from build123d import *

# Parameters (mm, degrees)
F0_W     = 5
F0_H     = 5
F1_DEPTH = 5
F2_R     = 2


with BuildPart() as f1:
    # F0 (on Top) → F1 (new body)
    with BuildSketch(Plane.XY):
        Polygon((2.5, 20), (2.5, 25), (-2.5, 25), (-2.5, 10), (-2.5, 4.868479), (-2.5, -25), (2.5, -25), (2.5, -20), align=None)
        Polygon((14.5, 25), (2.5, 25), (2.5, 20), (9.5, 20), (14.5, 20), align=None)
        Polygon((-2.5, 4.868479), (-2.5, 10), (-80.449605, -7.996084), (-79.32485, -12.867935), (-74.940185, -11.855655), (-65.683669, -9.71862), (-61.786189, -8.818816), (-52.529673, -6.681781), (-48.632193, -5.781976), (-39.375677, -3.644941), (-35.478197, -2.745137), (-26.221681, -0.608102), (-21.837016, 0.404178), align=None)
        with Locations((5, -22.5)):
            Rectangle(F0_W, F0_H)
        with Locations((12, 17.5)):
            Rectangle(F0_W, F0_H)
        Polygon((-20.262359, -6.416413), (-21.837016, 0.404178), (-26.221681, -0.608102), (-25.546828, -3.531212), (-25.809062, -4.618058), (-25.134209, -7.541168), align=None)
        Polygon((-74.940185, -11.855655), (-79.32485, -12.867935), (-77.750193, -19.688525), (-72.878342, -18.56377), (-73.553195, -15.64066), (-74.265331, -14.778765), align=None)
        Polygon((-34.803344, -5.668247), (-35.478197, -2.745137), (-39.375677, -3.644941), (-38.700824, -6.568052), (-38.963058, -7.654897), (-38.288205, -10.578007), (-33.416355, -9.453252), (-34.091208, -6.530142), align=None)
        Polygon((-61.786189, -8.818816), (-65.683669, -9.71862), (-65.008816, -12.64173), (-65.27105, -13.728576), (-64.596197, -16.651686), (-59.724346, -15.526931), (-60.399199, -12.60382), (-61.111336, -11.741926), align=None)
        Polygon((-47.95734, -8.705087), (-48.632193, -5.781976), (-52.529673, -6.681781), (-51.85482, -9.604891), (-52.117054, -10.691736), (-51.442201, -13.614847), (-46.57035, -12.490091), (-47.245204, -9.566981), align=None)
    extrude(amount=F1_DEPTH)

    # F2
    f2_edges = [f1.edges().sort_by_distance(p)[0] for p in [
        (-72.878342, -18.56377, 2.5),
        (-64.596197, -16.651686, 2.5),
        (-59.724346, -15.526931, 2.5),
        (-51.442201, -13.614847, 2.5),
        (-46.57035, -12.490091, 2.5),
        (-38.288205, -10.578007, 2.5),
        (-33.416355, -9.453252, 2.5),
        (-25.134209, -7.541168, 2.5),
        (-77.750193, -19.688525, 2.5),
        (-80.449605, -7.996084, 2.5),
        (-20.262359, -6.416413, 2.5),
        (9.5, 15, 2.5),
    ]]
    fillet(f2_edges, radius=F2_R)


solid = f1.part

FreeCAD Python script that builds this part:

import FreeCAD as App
import Part
import Sketcher
from FreeCAD import Vector
Q = App.Units.Quantity


def edges_at(feature, points):
    """Names of the edges that pass closest to the given points."""
    edges = feature.Shape.Edges
    near = lambda p: min(range(len(edges)), key=lambda i: edges[i].distToShape(Part.Vertex(*p))[0])
    return sorted({f"Edge{near(p) + 1}" for p in points})

doc = App.newDocument("Part")
body = doc.addObject("PartDesign::Body", "Body")

# Sketch on XY plane
sketch1 = doc.addObject("Sketcher::SketchObject", "Sketch")
body.addObject(sketch1)
sketch1.AttachmentSupport = (doc.XY_Plane, [""])
sketch1.MapMode = "FlatFace"
sketch1.addGeometry([
    Part.LineSegment(Vector(-2.5, 25, 0), Vector(-2.5, 10, 0)),  # 0
    Part.LineSegment(Vector(-2.5, 10, 0), Vector(-80.4, -8, 0)),  # 1
    Part.LineSegment(Vector(-80.4, -8, 0), Vector(-79.3, -12.9, 0)),  # 2
    Part.LineSegment(Vector(-79.3, -12.9, 0), Vector(-77.8, -19.7, 0)),  # 3
    Part.LineSegment(Vector(-77.8, -19.7, 0), Vector(-72.9, -18.6, 0)),  # 4
    Part.LineSegment(Vector(-72.9, -18.6, 0), Vector(-73.6, -15.6, 0)),  # 5
    Part.LineSegment(Vector(-73.6, -15.6, 0), Vector(-74.3, -14.8, 0)),  # 6
    Part.LineSegment(Vector(-74.3, -14.8, 0), Vector(-74.9, -11.9, 0)),  # 7
    Part.LineSegment(Vector(-74.9, -11.9, 0), Vector(-65.7, -9.7, 0)),  # 8
    Part.LineSegment(Vector(-65.7, -9.7, 0), Vector(-65, -12.6, 0)),  # 9
    Part.LineSegment(Vector(-65, -12.6, 0), Vector(-65.3, -13.7, 0)),  # 10
    Part.LineSegment(Vector(-65.3, -13.7, 0), Vector(-64.6, -16.7, 0)),  # 11
    Part.LineSegment(Vector(-64.6, -16.7, 0), Vector(-59.7, -15.5, 0)),  # 12
    Part.LineSegment(Vector(-59.7, -15.5, 0), Vector(-60.4, -12.6, 0)),  # 13
    Part.LineSegment(Vector(-60.4, -12.6, 0), Vector(-61.1, -11.7, 0)),  # 14
    Part.LineSegment(Vector(-61.1, -11.7, 0), Vector(-61.8, -8.8, 0)),  # 15
    Part.LineSegment(Vector(-61.8, -8.8, 0), Vector(-52.5, -6.7, 0)),  # 16
    Part.LineSegment(Vector(-52.5, -6.7, 0), Vector(-51.9, -9.6, 0)),  # 17
    Part.LineSegment(Vector(-51.9, -9.6, 0), Vector(-52.1, -10.7, 0)),  # 18
    Part.LineSegment(Vector(-52.1, -10.7, 0), Vector(-51.4, -13.6, 0)),  # 19
    Part.LineSegment(Vector(-51.4, -13.6, 0), Vector(-46.6, -12.5, 0)),  # 20
    Part.LineSegment(Vector(-46.6, -12.5, 0), Vector(-47.2, -9.6, 0)),  # 21
    Part.LineSegment(Vector(-47.2, -9.6, 0), Vector(-48, -8.7, 0)),  # 22
    Part.LineSegment(Vector(-48, -8.7, 0), Vector(-48.6, -5.8, 0)),  # 23
    Part.LineSegment(Vector(-48.6, -5.8, 0), Vector(-39.4, -3.6, 0)),  # 24
    Part.LineSegment(Vector(-39.4, -3.6, 0), Vector(-38.7, -6.6, 0)),  # 25
    Part.LineSegment(Vector(-38.7, -6.6, 0), Vector(-39, -7.7, 0)),  # 26
    Part.LineSegment(Vector(-39, -7.7, 0), Vector(-38.3, -10.6, 0)),  # 27
    Part.LineSegment(Vector(-38.3, -10.6, 0), Vector(-33.4, -9.5, 0)),  # 28
    Part.LineSegment(Vector(-33.4, -9.5, 0), Vector(-34.1, -6.5, 0)),  # 29
    Part.LineSegment(Vector(-34.1, -6.5, 0), Vector(-34.8, -5.7, 0)),  # 30
    Part.LineSegment(Vector(-34.8, -5.7, 0), Vector(-35.5, -2.7, 0)),  # 31
    Part.LineSegment(Vector(-35.5, -2.7, 0), Vector(-26.2, -0.6, 0)),  # 32
    Part.LineSegment(Vector(-26.2, -0.6, 0), Vector(-25.5, -3.5, 0)),  # 33
    Part.LineSegment(Vector(-25.5, -3.5, 0), Vector(-25.8, -4.6, 0)),  # 34
    Part.LineSegment(Vector(-25.8, -4.6, 0), Vector(-25.1, -7.5, 0)),  # 35
    Part.LineSegment(Vector(-25.1, -7.5, 0), Vector(-20.3, -6.4, 0)),  # 36
    Part.LineSegment(Vector(-20.3, -6.4, 0), Vector(-21.8, 0.4, 0)),  # 37
    Part.LineSegment(Vector(-21.8, 0.4, 0), Vector(-2.5, 4.9, 0)),  # 38
    Part.LineSegment(Vector(-2.5, 4.9, 0), Vector(-2.5, -25, 0)),  # 39
    Part.LineSegment(Vector(-2.5, -25, 0), Vector(7.5, -25, 0)),  # 40
    Part.LineSegment(Vector(7.5, -25, 0), Vector(7.5, -20, 0)),  # 41
    Part.LineSegment(Vector(7.5, -20, 0), Vector(2.5, -20, 0)),  # 42
    Part.LineSegment(Vector(2.5, -20, 0), Vector(2.5, 20, 0)),  # 43
    Part.LineSegment(Vector(2.5, 20, 0), Vector(9.5, 20, 0)),  # 44
    Part.LineSegment(Vector(9.5, 20, 0), Vector(9.5, 15, 0)),  # 45
    Part.LineSegment(Vector(9.5, 15, 0), Vector(14.5, 15, 0)),  # 46
    Part.LineSegment(Vector(14.5, 15, 0), Vector(14.5, 25, 0)),  # 47
    Part.LineSegment(Vector(14.5, 25, 0), Vector(-2.5, 25, 0)),  # 48
], False)
sketch1.addConstraint([
    Sketcher.Constraint("Coincident", 0, 2, 1, 1),
    Sketcher.Constraint("Coincident", 1, 2, 2, 1),
    Sketcher.Constraint("Coincident", 2, 2, 3, 1),
    Sketcher.Constraint("Coincident", 3, 2, 4, 1),
    Sketcher.Constraint("Coincident", 4, 2, 5, 1),
    Sketcher.Constraint("Coincident", 5, 2, 6, 1),
    Sketcher.Constraint("Coincident", 6, 2, 7, 1),
    Sketcher.Constraint("Coincident", 7, 2, 8, 1),
    Sketcher.Constraint("Coincident", 8, 2, 9, 1),
    Sketcher.Constraint("Coincident", 9, 2, 10, 1),
    Sketcher.Constraint("Coincident", 10, 2, 11, 1),
    Sketcher.Constraint("Coincident", 11, 2, 12, 1),
    Sketcher.Constraint("Coincident", 12, 2, 13, 1),
    Sketcher.Constraint("Coincident", 13, 2, 14, 1),
    Sketcher.Constraint("Coincident", 14, 2, 15, 1),
    Sketcher.Constraint("Coincident", 15, 2, 16, 1),
    Sketcher.Constraint("Coincident", 16, 2, 17, 1),
    Sketcher.Constraint("Coincident", 17, 2, 18, 1),
    Sketcher.Constraint("Coincident", 18, 2, 19, 1),
    Sketcher.Constraint("Coincident", 19, 2, 20, 1),
    Sketcher.Constraint("Coincident", 20, 2, 21, 1),
    Sketcher.Constraint("Coincident", 21, 2, 22, 1),
    Sketcher.Constraint("Coincident", 22, 2, 23, 1),
    Sketcher.Constraint("Coincident", 23, 2, 24, 1),
    Sketcher.Constraint("Coincident", 24, 2, 25, 1),
    Sketcher.Constraint("Coincident", 25, 2, 26, 1),
    Sketcher.Constraint("Coincident", 26, 2, 27, 1),
    Sketcher.Constraint("Coincident", 27, 2, 28, 1),
    Sketcher.Constraint("Coincident", 28, 2, 29, 1),
    Sketcher.Constraint("Coincident", 29, 2, 30, 1),
    Sketcher.Constraint("Coincident", 30, 2, 31, 1),
    Sketcher.Constraint("Coincident", 31, 2, 32, 1),
    Sketcher.Constraint("Coincident", 32, 2, 33, 1),
    Sketcher.Constraint("Coincident", 33, 2, 34, 1),
    Sketcher.Constraint("Coincident", 34, 2, 35, 1),
    Sketcher.Constraint("Coincident", 35, 2, 36, 1),
    Sketcher.Constraint("Coincident", 36, 2, 37, 1),
    Sketcher.Constraint("Coincident", 37, 2, 38, 1),
    Sketcher.Constraint("Coincident", 38, 2, 39, 1),
    Sketcher.Constraint("Coincident", 39, 2, 40, 1),
    Sketcher.Constraint("Coincident", 40, 2, 41, 1),
    Sketcher.Constraint("Coincident", 41, 2, 42, 1),
    Sketcher.Constraint("Coincident", 42, 2, 43, 1),
    Sketcher.Constraint("Coincident", 43, 2, 44, 1),
    Sketcher.Constraint("Coincident", 44, 2, 45, 1),
    Sketcher.Constraint("Coincident", 45, 2, 46, 1),
    Sketcher.Constraint("Coincident", 46, 2, 47, 1),
    Sketcher.Constraint("Coincident", 47, 2, 48, 1),
    Sketcher.Constraint("Coincident", 48, 2, 0, 1),
    Sketcher.Constraint("Vertical", 0),
    Sketcher.Constraint("Vertical", 39),
    Sketcher.Constraint("Horizontal", 40),
    Sketcher.Constraint("Vertical", 41),
    Sketcher.Constraint("Horizontal", 42),
    Sketcher.Constraint("Vertical", 43),
    Sketcher.Constraint("Horizontal", 44),
    Sketcher.Constraint("Vertical", 45),
    Sketcher.Constraint("Horizontal", 46),
    Sketcher.Constraint("Vertical", 47),
    Sketcher.Constraint("Horizontal", 48),
    Sketcher.Constraint("Symmetric", 39, 2, 48, 2, -1),
    Sketcher.Constraint("Perpendicular", 1, 2),
    Sketcher.Constraint("Parallel", 2, 3),
    Sketcher.Constraint("Perpendicular", 3, 4),
    Sketcher.Constraint("Perpendicular", 4, 5),
    Sketcher.Constraint("Parallel", 5, 7),
    Sketcher.Constraint("Perpendicular", 7, 8),
    Sketcher.Constraint("Perpendicular", 8, 9),
    Sketcher.Constraint("Parallel", 9, 11),
    Sketcher.Constraint("Perpendicular", 11, 12),
    Sketcher.Constraint("Perpendicular", 12, 13),
    Sketcher.Constraint("Parallel", 6, 14),
    Sketcher.Constraint("Parallel", 13, 15),
    Sketcher.Constraint("Perpendicular", 15, 16),
    Sketcher.Constraint("Perpendicular", 16, 17),
    Sketcher.Constraint("Parallel", 10, 18),
    Sketcher.Constraint("Parallel", 17, 19),
    Sketcher.Constraint("Perpendicular", 19, 20),
    Sketcher.Constraint("Perpendicular", 20, 21),
    Sketcher.Constraint("Parallel", 14, 22),
    Sketcher.Constraint("Parallel", 21, 23),
    Sketcher.Constraint("Perpendicular", 23, 24),
    Sketcher.Constraint("Perpendicular", 24, 25),
    Sketcher.Constraint("Parallel", 18, 26),
    Sketcher.Constraint("Parallel", 25, 27),
    Sketcher.Constraint("Perpendicular", 27, 28),
    Sketcher.Constraint("Perpendicular", 28, 29),
    Sketcher.Constraint("Parallel", 22, 30),
    Sketcher.Constraint("Parallel", 29, 31),
    Sketcher.Constraint("Perpendicular", 31, 32),
    Sketcher.Constraint("Perpendicular", 32, 33),
    Sketcher.Constraint("Parallel", 26, 34),
    Sketcher.Constraint("Parallel", 33, 35),
    Sketcher.Constraint("Perpendicular", 35, 36),
    Sketcher.Constraint("Perpendicular", 36, 37),
    Sketcher.Constraint("Perpendicular", 37, 38),
    Sketcher.Constraint("Equal", 42, 46),
    Sketcher.Constraint("Equal", 46, 41),
    Sketcher.Constraint("Equal", 41, 45),
    Sketcher.Constraint("Equal", 40, 47),
    Sketcher.Constraint("Equal", 2, 4),
    Sketcher.Constraint("Equal", 5, 7),
    Sketcher.Constraint("Equal", 7, 9),
    Sketcher.Constraint("Equal", 6, 10),
    Sketcher.Constraint("Equal", 9, 11),
    Sketcher.Constraint("Equal", 4, 12),
    Sketcher.Constraint("Equal", 11, 13),
    Sketcher.Constraint("Equal", 10, 14),
    Sketcher.Constraint("Equal", 13, 15),
    Sketcher.Constraint("Equal", 8, 16),
    Sketcher.Constraint("Equal", 15, 17),
    Sketcher.Constraint("Equal", 14, 18),
    Sketcher.Constraint("Equal", 17, 19),
    Sketcher.Constraint("Equal", 12, 20),
    Sketcher.Constraint("Equal", 19, 21),
    Sketcher.Constraint("Equal", 18, 22),
    Sketcher.Constraint("Equal", 21, 23),
    Sketcher.Constraint("Equal", 16, 24),
    Sketcher.Constraint("Equal", 23, 25),
    Sketcher.Constraint("Equal", 22, 26),
    Sketcher.Constraint("Equal", 25, 27),
    Sketcher.Constraint("Equal", 20, 28),
    Sketcher.Constraint("Equal", 27, 29),
    Sketcher.Constraint("Equal", 26, 30),
    Sketcher.Constraint("Equal", 29, 31),
    Sketcher.Constraint("Equal", 24, 32),
    Sketcher.Constraint("Equal", 31, 33),
    Sketcher.Constraint("Equal", 30, 34),
    Sketcher.Constraint("Equal", 33, 35),
    Sketcher.Constraint("Equal", 28, 36),
    Sketcher.Constraint("Equal", 3, 37),
    Sketcher.Constraint("DistanceX", 40, 1, 40, 2, Q("10 mm")),
    Sketcher.Constraint("DistanceX", 42, 2, 42, 1, Q("5 mm")),
    Sketcher.Constraint("DistanceX", 44, 1, 44, 2, Q("7 mm")),
    Sketcher.Constraint("DistanceY", 0, 2, 0, 1, Q("15 mm")),
    Sketcher.Constraint("DistanceY", 43, 1, 43, 2, Q("40 mm")),
    Sketcher.Constraint("Angle", 1, Q("-167 deg")),
    Sketcher.Constraint("Distance", 1, Q("80 mm")),
    Sketcher.Constraint("Distance", 2, Q("5.000001 mm")),
    Sketcher.Constraint("Distance", 3, Q("6.999999 mm")),
    Sketcher.Constraint("Distance", 5, Q("3 mm")),
    Sketcher.Constraint("Distance", 8, Q("9.5 mm")),
    Sketcher.Constraint("DistanceX", 0, 2, -1, 1, Q("2.5 mm")),
    Sketcher.Constraint("DistanceX", 13, 2, 19, 2, Q("8.956998 mm")),
    Sketcher.Constraint("DistanceY", 39, 2, 39, 1, Q("29.868479 mm")),
    Sketcher.Constraint("DistanceY", 12, 2, 9, 2, Q("2.885201 mm")),
])
pad1 = doc.addObject("PartDesign::Pad", "Pad")
body.addObject(pad1)
pad1.Profile = sketch1
pad1.Length = 5
doc.recompute()

fillet = doc.addObject("PartDesign::Fillet", "Fillet")
body.addObject(fillet)
fillet.Base = (pad1, edges_at(pad1, [
    (-72.878, -18.564, 2.5),
    (-64.596, -16.652, 2.5),
    (-59.724, -15.527, 2.5),
    (-51.442, -13.615, 2.5),
    (-46.57, -12.49, 2.5),
    (-38.288, -10.578, 2.5),
    (-33.416, -9.453, 2.5),
    (-25.134, -7.541, 2.5),
    (-77.75, -19.689, 2.5),
    (-80.45, -7.996, 2.5),
    (-20.262, -6.416, 2.5),
    (9.5, 15, 2.5),
]))
fillet.Radius = 2

doc.recompute()
